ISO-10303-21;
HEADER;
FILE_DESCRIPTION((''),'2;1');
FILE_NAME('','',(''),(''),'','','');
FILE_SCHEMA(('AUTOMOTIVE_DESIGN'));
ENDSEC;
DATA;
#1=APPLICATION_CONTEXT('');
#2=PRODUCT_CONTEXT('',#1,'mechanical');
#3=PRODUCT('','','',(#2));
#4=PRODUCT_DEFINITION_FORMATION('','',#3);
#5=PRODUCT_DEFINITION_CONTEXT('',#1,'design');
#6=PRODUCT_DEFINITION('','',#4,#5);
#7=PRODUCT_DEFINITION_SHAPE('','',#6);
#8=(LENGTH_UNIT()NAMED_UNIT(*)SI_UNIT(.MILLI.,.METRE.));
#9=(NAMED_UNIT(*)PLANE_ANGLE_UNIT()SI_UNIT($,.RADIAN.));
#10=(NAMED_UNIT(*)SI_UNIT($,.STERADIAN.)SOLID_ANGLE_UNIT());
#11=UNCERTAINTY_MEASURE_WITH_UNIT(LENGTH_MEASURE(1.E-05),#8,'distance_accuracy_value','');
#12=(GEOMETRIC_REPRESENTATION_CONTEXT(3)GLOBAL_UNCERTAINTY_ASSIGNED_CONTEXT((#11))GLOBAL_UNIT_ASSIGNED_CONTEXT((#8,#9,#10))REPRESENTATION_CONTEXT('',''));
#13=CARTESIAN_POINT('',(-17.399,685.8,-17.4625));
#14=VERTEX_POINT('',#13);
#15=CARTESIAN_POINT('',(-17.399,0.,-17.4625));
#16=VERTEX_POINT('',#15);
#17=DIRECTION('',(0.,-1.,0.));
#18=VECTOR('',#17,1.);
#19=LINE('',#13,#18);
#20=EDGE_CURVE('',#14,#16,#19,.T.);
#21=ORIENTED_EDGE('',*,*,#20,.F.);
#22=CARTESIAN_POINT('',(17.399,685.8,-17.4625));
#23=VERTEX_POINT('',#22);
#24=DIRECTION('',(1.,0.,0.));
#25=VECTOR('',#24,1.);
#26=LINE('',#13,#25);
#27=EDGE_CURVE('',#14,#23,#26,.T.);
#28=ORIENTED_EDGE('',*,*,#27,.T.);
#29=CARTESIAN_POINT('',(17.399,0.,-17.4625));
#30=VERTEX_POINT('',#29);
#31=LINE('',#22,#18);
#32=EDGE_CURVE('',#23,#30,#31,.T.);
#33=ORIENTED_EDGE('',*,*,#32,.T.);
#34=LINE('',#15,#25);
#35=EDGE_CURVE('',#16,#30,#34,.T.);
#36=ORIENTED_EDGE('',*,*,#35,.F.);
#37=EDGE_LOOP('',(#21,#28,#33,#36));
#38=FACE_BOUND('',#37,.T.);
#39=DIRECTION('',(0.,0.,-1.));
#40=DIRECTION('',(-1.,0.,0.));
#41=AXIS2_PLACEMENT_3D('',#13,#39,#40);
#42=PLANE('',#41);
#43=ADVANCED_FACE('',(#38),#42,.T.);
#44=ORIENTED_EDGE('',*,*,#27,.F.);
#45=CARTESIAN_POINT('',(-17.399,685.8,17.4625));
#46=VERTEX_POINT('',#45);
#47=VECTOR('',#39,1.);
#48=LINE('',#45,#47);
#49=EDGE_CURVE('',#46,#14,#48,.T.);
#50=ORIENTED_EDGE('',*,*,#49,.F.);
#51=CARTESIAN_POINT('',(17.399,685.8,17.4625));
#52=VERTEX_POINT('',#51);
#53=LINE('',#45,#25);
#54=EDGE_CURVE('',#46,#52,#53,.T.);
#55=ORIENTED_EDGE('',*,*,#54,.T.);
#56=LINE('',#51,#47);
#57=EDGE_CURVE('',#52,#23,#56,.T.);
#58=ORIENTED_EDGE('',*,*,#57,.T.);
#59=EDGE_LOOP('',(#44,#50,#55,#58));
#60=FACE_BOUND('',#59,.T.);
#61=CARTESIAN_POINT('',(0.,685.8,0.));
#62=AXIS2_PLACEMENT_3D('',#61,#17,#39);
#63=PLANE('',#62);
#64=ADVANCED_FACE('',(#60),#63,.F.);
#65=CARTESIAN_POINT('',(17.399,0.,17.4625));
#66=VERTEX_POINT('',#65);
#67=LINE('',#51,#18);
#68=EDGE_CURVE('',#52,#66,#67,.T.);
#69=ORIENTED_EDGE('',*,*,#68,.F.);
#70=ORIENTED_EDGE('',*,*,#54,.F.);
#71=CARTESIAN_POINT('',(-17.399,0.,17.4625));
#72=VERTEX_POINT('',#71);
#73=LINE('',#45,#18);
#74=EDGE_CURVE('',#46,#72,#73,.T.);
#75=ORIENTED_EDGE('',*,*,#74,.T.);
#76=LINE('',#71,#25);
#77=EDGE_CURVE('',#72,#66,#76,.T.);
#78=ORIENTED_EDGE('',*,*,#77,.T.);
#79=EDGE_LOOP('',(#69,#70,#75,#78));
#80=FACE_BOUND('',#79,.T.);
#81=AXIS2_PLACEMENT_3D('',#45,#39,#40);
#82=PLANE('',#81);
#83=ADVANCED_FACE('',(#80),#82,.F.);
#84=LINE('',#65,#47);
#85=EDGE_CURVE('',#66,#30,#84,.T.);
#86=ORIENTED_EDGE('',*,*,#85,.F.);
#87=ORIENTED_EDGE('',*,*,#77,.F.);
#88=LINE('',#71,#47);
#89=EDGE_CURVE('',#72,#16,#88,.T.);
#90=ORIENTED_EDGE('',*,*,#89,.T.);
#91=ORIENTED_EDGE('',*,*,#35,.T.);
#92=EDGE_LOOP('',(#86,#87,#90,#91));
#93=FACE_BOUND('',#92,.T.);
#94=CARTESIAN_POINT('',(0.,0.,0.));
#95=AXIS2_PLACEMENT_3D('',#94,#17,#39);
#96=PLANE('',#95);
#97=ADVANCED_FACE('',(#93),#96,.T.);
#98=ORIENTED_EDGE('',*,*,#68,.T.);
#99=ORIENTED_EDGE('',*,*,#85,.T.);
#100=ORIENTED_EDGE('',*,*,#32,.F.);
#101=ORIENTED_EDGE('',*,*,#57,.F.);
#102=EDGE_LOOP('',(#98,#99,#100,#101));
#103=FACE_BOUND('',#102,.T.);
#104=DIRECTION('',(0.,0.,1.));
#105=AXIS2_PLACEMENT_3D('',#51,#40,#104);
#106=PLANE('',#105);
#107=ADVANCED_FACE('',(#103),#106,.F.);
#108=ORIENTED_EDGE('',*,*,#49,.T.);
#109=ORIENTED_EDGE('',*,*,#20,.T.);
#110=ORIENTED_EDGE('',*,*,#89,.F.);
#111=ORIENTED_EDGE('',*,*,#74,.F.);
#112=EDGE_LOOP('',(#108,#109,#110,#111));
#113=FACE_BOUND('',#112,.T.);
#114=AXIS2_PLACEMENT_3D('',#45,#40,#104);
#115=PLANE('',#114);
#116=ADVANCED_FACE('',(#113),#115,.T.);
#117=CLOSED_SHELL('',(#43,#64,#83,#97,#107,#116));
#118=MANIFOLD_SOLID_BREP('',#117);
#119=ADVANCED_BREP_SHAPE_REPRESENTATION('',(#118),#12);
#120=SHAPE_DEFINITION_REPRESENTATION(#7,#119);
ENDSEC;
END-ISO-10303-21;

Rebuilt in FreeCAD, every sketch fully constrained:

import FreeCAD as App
import Part
import Sketcher

V = App.Vector
Q = App.Units.Quantity

doc = App.newDocument("Part")
body = doc.addObject("PartDesign::Body", "Body")

sketch1 = doc.addObject("Sketcher::SketchObject", "Sketch")
body.addObject(sketch1)
sketch1.AttachmentSupport = (doc.XZ_Plane, [""])
sketch1.MapMode = "FlatFace"
sketch1.addGeometry(Part.LineSegment(V(-17, -17, 0), V(-17, 17, 0)), False)
sketch1.addGeometry(Part.LineSegment(V(-17, 17, 0), V(17, 17, 0)), False)
sketch1.addGeometry(Part.LineSegment(V(17, 17, 0), V(17, -17, 0)), False)
sketch1.addGeometry(Part.LineSegment(V(17, -17, 0), V(-17, -17, 0)), False)
sketch1.addConstraint(Sketcher.Constraint("Coincident", 0, 2, 1, 1))
sketch1.addConstraint(Sketcher.Constraint("Coincident", 1, 2, 2, 1))
sketch1.addConstraint(Sketcher.Constraint("Coincident", 2, 2, 3, 1))
sketch1.addConstraint(Sketcher.Constraint("Coincident", 3, 2, 0, 1))
sketch1.addConstraint(Sketcher.Constraint("Vertical", 0))
sketch1.addConstraint(Sketcher.Constraint("Horizontal", 1))
sketch1.addConstraint(Sketcher.Constraint("Vertical", 2))
sketch1.addConstraint(Sketcher.Constraint("Horizontal", 3))
sketch1.addConstraint(Sketcher.Constraint("Symmetric", 0, 2, 2, 2, -1, 1))
sketch1.addConstraint(Sketcher.Constraint("DistanceX", 1, 1, 1, 2, Q("1.37 in")))
sketch1.addConstraint(Sketcher.Constraint("DistanceY", 0, 1, 0, 2, Q("1.375 in")))
pad1 = doc.addObject("PartDesign::Pad", "Pad")
body.addObject(pad1)
pad1.Profile = sketch1
pad1.Length = Q("27 in")
pad1.Reversed = True

doc.recompute()
